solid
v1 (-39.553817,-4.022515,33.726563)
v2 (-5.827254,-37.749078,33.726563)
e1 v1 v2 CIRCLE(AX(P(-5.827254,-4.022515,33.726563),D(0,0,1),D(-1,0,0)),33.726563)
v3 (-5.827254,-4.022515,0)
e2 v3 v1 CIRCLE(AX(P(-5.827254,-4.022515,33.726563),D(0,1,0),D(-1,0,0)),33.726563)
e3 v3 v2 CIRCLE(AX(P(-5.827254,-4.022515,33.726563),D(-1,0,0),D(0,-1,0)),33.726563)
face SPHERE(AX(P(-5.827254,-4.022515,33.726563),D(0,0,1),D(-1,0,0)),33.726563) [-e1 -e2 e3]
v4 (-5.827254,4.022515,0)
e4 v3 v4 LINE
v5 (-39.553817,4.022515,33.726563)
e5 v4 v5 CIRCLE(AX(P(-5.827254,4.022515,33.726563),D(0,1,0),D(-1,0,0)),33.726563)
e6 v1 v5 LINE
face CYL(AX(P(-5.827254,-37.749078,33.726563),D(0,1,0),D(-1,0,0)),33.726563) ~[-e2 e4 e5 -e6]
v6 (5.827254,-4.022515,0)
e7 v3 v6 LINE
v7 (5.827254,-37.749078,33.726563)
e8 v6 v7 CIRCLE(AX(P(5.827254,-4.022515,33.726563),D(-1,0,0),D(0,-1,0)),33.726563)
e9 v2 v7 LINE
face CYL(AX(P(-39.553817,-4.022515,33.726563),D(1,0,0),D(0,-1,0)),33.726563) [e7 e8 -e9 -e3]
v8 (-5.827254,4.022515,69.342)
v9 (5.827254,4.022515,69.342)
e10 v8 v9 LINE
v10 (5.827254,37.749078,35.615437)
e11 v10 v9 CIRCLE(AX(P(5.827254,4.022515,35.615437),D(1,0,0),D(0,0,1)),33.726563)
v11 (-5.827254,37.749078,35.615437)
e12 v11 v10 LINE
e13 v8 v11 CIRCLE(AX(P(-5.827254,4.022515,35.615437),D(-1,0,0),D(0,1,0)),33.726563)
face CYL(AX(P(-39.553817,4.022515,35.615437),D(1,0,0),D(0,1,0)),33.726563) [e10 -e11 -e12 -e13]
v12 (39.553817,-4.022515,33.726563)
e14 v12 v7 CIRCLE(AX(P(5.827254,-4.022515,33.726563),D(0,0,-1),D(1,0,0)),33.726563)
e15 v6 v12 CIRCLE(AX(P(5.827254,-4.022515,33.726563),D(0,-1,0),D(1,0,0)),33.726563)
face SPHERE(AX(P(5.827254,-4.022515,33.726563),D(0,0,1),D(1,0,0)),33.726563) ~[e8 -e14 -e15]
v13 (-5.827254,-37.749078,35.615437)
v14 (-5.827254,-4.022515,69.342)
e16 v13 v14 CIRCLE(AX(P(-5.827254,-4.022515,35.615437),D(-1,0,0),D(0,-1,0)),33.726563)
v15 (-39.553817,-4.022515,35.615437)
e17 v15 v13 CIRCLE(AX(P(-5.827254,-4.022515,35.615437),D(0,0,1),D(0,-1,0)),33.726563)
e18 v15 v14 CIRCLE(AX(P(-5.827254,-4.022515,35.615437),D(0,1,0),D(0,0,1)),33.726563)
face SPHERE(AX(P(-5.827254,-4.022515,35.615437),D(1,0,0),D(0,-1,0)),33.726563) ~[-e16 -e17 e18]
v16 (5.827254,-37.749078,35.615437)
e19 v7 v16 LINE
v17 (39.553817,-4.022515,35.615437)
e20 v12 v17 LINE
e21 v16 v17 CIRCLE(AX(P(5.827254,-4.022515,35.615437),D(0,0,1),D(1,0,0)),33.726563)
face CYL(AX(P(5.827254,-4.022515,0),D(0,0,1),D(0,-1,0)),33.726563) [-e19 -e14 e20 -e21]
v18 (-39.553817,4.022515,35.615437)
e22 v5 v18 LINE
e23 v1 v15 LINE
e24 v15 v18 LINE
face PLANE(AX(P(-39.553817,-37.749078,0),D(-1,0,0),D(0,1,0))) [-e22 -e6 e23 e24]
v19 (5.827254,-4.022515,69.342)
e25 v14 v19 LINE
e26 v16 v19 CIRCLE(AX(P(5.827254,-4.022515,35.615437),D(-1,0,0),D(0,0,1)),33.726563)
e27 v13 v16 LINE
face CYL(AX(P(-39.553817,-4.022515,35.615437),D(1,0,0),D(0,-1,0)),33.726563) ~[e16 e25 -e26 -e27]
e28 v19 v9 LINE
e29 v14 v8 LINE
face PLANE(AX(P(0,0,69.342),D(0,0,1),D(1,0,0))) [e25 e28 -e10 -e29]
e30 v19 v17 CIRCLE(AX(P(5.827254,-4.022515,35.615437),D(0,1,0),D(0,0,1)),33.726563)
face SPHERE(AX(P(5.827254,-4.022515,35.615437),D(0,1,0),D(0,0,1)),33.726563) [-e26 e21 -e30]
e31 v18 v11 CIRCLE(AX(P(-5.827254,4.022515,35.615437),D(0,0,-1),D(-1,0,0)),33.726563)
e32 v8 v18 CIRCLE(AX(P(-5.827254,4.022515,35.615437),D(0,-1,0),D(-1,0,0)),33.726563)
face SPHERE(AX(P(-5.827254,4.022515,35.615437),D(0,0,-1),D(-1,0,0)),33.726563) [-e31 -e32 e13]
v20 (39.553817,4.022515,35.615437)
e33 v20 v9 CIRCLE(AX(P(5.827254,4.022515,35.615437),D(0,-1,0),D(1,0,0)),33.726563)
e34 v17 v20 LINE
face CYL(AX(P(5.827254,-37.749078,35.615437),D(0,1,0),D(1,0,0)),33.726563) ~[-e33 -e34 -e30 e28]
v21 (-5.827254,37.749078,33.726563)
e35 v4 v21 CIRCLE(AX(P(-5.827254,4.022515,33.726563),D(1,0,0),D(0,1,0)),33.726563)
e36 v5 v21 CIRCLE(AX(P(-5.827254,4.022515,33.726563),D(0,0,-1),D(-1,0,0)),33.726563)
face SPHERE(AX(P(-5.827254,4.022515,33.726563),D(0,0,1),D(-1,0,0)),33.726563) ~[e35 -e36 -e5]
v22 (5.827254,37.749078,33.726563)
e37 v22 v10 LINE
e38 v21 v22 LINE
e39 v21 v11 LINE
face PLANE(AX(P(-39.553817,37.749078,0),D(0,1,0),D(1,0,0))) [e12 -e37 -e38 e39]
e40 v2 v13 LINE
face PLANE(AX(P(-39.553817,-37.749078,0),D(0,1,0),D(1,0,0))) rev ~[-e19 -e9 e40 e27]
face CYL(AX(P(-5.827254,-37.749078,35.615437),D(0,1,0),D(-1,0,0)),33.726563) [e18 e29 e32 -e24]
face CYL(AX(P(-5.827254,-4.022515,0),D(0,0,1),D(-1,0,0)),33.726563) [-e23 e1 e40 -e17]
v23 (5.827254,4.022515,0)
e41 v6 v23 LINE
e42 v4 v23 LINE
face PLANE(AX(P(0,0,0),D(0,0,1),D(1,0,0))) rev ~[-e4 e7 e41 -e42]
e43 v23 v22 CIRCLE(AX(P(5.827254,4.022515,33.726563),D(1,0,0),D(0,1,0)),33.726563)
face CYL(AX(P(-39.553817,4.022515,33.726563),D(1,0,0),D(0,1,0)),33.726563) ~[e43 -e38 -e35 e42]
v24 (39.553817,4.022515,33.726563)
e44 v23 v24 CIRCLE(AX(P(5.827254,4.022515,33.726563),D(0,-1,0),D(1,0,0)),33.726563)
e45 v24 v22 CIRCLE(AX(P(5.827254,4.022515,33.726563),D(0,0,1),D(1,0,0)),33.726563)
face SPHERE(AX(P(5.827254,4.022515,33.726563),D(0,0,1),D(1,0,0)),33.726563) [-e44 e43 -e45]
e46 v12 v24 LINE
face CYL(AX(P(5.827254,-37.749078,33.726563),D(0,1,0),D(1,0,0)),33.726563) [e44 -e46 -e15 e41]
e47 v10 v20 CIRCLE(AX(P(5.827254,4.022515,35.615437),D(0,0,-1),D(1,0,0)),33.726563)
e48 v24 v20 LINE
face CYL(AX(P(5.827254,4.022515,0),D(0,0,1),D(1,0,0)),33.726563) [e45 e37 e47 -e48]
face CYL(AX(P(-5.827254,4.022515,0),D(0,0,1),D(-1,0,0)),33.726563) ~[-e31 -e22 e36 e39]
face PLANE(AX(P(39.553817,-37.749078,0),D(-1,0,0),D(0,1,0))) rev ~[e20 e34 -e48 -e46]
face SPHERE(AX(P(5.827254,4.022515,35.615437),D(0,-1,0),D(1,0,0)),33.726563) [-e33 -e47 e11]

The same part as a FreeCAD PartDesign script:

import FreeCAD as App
import Part
import Sketcher
from FreeCAD import Vector
Q = App.Units.Quantity


def add_polygon(sketch, points):
    """Adds a closed chain of lines whose ends are joined by coincident constraints."""
    first, n = sketch.GeometryCount, len(points)
    for a, b in zip(points, points[1:] + points[:1]):
        sketch.addGeometry(Part.LineSegment(App.Vector(*a, 0), App.Vector(*b, 0)), False)
    for i in range(n):
        sketch.addConstraint(Sketcher.Constraint("Coincident", first + i, 2, first + (i + 1) % n, 1))

doc = App.newDocument("Part")
params = doc.addObject("Spreadsheet::Sheet", "Params")
for row, (alias, value) in enumerate([
    ("pad1_length", "2.73 in"),
    ("fillet_radius", "33.726563 mm"),
], start=1):
    params.set(f"A{row}", alias)
    params.set(f"B{row}", "=" + value)
    params.setAlias(f"B{row}", alias)

body = doc.addObject("PartDesign::Body", "Body")

# Sketch on XY plane
sketch1 = body.newObject("Sketcher::SketchObject", "Sketch")
sketch1.AttachmentSupport = (doc.getObject("XY_Plane"), [""])
sketch1.MapMode = "FlatFace"
add_polygon(sketch1, [(-40, 38), (-40, -38), (40, -38), (40, 38)])  # lines 0-3
sketch1.addConstraint(Sketcher.Constraint("Vertical", 0))
sketch1.addConstraint(Sketcher.Constraint("Horizontal", 1))
sketch1.addConstraint(Sketcher.Constraint("Vertical", 2))
sketch1.addConstraint(Sketcher.Constraint("Horizontal", 3))
sketch1.addConstraint(Sketcher.Constraint("Symmetric", 0, 2, 2, 2, -1, 1))
sketch1.addConstraint(Sketcher.Constraint("DistanceX", 1, 1, 1, 2, Q("79.107634 mm")))
sketch1.addConstraint(Sketcher.Constraint("DistanceY", 0, 2, 0, 1, Q("75.498156 mm")))
pad1 = body.newObject("PartDesign::Pad", "Pad")
pad1.Profile = sketch1
pad1.setExpression("Length", "Params.pad1_length")
doc.recompute()

fillet = body.newObject("PartDesign::Fillet", "Fillet")
fillet.Base = (pad1, ["Edge1"])
fillet.UseAllEdges = True
fillet.setExpression("Radius", "Params.fillet_radius")

doc.recompute()
